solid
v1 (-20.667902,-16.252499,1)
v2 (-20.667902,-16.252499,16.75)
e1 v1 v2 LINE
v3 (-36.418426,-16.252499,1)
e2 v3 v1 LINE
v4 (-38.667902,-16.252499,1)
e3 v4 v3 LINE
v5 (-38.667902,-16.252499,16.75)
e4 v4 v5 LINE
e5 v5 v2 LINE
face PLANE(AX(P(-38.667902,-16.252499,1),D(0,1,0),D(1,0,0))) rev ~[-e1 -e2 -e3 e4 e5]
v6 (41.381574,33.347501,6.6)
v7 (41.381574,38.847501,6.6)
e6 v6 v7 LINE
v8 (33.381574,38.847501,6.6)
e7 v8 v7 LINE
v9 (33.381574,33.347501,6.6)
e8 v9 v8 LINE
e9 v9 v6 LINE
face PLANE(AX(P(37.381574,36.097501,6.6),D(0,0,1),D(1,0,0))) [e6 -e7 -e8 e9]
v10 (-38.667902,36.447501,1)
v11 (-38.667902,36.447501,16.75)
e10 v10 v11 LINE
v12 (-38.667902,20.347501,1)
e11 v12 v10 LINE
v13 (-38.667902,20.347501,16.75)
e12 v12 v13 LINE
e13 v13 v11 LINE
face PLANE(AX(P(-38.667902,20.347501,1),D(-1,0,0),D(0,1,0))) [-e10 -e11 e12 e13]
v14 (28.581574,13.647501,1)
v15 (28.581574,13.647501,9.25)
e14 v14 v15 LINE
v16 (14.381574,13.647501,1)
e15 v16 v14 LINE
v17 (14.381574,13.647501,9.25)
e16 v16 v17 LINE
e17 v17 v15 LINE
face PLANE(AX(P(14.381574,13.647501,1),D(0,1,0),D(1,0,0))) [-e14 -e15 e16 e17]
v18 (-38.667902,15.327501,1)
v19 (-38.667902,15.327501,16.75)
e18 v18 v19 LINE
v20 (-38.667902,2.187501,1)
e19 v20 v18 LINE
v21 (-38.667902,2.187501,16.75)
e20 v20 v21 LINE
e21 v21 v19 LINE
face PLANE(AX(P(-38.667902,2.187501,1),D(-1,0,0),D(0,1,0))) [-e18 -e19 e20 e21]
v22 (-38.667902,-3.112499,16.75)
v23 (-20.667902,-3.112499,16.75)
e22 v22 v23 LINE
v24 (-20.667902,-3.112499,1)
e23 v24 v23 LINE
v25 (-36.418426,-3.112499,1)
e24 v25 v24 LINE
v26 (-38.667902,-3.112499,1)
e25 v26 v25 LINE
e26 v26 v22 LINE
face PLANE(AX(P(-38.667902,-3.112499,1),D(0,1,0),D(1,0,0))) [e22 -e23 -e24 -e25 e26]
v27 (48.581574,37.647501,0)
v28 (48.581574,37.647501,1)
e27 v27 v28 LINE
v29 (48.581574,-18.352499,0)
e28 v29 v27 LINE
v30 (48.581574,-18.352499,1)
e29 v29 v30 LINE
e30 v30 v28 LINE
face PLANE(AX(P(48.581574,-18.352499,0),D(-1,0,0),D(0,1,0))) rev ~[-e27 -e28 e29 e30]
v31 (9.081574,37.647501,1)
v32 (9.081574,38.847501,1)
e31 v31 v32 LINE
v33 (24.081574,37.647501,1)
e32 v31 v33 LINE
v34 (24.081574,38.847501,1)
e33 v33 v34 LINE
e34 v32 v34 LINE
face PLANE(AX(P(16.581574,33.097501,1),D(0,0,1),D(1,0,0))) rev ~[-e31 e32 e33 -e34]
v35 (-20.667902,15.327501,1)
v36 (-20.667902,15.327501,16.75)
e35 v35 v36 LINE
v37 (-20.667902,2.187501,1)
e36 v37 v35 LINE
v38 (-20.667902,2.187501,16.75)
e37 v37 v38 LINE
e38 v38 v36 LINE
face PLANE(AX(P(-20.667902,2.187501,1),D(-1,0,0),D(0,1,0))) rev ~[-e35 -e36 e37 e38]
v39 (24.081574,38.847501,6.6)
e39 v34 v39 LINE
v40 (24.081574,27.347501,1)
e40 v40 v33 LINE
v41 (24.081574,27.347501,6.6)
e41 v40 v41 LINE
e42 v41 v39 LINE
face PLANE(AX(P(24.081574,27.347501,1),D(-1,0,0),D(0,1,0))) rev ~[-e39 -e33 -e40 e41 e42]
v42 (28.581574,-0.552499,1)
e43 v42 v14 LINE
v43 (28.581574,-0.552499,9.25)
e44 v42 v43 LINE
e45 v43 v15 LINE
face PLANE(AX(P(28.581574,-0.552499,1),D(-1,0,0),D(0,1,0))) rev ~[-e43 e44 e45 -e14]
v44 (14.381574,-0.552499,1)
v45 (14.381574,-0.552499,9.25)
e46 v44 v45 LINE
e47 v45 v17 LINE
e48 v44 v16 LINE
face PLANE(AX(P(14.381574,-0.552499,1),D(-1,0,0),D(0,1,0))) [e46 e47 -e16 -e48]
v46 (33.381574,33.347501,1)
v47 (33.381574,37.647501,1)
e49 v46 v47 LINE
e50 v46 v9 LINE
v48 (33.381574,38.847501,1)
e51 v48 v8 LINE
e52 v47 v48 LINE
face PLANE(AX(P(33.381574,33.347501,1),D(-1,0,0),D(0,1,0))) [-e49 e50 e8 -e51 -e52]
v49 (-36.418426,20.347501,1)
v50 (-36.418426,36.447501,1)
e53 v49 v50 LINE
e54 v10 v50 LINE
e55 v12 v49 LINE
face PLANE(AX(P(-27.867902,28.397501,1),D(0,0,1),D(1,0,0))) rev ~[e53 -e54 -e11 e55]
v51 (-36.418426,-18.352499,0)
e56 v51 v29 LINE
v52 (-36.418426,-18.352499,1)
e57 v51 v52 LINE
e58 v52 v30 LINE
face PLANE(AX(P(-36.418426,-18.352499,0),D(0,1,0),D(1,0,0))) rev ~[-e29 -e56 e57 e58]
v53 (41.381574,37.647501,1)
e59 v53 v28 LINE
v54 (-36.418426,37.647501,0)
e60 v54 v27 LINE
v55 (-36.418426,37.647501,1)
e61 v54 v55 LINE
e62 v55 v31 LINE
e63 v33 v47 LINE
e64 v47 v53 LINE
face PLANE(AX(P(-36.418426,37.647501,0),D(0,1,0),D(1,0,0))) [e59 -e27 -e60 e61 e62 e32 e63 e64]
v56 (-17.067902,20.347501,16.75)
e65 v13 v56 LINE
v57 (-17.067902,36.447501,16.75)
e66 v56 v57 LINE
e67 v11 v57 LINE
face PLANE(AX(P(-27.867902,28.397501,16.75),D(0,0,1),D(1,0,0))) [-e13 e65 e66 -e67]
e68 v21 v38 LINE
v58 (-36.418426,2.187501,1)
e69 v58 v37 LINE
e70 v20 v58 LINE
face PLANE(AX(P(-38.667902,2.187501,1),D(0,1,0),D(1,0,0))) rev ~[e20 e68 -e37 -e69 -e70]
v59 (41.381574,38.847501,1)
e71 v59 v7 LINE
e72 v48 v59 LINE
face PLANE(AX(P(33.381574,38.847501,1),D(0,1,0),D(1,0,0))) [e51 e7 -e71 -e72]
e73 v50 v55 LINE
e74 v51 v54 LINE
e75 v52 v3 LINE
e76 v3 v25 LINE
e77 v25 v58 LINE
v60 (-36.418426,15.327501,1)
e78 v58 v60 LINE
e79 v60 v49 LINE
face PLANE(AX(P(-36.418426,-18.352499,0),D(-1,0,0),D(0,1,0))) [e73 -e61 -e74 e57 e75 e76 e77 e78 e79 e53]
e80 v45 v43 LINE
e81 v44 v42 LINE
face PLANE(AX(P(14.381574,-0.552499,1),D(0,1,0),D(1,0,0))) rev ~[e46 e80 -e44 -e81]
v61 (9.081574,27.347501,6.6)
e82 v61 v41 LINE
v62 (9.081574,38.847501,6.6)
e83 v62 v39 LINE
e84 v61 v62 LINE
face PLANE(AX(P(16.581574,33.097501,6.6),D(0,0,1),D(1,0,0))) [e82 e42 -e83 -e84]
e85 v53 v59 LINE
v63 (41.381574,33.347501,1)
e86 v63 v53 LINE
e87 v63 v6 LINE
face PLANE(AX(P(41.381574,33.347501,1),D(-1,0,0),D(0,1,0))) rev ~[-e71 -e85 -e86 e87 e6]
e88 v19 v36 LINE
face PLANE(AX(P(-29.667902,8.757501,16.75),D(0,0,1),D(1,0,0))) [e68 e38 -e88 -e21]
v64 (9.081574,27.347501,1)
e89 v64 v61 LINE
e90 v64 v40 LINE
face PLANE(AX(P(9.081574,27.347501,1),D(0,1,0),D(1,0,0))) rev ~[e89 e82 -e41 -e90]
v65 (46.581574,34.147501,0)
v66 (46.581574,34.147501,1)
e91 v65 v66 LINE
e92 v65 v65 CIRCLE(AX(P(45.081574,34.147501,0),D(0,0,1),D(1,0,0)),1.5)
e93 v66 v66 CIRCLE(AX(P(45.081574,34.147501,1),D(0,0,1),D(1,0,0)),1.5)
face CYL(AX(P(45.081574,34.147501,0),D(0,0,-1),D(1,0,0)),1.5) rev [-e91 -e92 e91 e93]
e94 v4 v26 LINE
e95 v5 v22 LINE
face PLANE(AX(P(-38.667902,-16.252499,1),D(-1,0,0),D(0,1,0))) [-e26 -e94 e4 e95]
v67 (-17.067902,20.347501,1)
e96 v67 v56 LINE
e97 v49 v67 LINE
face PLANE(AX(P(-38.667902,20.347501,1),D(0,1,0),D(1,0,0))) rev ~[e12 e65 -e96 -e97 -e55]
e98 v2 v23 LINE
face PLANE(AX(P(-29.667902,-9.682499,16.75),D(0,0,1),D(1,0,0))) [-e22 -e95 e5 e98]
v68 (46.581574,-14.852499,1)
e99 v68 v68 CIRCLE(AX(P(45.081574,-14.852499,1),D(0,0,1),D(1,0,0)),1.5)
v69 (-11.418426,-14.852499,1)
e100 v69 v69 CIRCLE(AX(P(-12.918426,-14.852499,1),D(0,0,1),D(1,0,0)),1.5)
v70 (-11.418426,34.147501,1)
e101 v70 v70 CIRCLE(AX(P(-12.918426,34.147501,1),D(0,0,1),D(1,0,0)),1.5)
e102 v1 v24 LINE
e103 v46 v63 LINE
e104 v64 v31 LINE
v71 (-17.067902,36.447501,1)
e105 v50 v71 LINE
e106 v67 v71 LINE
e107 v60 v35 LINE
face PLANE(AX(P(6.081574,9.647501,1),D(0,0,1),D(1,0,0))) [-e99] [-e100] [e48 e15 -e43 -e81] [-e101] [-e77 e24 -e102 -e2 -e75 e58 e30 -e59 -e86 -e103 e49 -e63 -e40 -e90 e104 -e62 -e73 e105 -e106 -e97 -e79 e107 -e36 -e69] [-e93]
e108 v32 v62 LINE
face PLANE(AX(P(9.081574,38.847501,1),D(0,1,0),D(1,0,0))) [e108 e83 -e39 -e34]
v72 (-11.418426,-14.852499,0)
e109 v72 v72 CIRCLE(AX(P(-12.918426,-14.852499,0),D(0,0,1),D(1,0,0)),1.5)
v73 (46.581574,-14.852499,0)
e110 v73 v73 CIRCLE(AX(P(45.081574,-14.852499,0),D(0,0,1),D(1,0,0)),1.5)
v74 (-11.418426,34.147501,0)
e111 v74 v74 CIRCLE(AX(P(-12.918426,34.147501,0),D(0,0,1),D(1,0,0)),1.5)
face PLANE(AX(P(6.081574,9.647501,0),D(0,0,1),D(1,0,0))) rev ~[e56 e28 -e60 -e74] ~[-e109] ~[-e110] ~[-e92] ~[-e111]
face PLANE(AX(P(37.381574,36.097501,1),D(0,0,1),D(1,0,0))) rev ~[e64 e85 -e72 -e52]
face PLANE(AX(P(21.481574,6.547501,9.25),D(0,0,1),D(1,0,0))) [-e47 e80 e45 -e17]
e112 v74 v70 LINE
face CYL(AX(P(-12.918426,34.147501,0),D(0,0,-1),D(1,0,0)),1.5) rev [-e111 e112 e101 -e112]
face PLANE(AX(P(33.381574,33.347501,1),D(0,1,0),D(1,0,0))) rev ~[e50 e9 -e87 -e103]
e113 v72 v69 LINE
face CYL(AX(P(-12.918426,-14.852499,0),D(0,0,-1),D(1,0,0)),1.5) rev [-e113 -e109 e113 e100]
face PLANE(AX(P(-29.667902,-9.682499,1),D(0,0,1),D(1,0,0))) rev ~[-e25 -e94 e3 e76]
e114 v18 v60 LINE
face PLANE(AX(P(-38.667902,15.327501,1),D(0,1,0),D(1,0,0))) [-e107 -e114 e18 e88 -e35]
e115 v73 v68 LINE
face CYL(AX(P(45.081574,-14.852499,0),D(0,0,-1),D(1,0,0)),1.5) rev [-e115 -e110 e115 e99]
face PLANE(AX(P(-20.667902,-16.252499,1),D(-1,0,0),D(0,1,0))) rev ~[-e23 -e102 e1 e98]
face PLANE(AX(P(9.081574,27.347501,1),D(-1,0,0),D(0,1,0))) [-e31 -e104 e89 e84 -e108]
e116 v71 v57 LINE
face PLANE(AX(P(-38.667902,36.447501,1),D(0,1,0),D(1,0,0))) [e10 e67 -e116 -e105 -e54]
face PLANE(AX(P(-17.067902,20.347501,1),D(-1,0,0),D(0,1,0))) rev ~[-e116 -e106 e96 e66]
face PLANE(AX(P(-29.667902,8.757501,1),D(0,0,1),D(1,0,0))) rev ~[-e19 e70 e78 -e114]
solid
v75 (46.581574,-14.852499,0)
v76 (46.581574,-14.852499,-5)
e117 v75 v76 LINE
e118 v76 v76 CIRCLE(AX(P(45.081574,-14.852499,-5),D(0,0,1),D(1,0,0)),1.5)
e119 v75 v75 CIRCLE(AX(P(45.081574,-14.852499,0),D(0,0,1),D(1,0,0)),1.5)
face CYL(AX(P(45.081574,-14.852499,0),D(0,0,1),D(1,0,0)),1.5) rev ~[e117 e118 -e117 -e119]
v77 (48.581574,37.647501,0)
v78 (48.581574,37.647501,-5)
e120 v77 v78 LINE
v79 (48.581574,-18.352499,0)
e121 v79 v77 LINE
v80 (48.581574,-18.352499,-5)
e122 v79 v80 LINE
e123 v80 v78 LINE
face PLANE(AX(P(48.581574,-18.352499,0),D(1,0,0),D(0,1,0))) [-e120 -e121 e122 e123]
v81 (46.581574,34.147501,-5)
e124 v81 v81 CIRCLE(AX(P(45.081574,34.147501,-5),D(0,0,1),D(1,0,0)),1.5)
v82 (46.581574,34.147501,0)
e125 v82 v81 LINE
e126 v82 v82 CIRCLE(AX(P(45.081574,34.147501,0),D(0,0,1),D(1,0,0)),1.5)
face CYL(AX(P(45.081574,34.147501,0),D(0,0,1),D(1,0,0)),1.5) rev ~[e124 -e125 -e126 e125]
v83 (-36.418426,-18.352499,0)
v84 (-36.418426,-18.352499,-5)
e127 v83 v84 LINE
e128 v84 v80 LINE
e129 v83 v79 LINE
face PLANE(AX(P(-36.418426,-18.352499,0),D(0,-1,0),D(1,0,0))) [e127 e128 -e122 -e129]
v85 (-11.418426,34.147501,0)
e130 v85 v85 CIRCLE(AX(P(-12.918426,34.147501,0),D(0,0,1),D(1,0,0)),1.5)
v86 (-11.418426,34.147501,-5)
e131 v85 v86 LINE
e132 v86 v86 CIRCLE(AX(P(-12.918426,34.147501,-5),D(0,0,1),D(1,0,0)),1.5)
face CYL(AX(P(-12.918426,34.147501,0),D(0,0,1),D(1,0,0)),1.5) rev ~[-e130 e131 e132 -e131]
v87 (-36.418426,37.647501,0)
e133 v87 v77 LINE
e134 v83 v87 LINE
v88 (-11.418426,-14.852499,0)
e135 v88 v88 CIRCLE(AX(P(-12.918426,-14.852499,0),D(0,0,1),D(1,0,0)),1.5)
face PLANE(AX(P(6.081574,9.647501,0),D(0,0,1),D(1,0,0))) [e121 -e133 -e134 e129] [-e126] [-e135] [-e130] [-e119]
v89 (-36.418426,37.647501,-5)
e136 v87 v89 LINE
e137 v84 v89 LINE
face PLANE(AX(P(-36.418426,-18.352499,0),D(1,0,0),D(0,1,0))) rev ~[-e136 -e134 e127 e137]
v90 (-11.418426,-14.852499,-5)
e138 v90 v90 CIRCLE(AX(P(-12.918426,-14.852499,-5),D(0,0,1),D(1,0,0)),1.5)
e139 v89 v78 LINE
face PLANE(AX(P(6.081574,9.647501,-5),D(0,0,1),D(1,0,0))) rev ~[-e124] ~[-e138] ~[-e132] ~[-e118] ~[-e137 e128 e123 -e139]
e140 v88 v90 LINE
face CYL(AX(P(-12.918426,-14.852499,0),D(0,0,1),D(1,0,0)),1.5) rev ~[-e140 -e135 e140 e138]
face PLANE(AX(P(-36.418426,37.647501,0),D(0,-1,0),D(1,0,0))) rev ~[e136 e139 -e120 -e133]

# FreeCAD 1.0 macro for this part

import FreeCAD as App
import Part
import Sketcher

doc = App.newDocument("Part")
body = doc.addObject("PartDesign::Body", "Body")

# Sketch on XY plane
sketch1 = body.newObject("Sketcher::SketchObject", "Sketch")
sketch1.AttachmentSupport = (doc.getObject("XY_Plane"), [""])
sketch1.MapMode = "FlatFace"
sketch1.addGeometry([
    Part.LineSegment(App.Vector(-36.418426, 37.647501, 0), App.Vector(-36.418426, -18.352499, 0)),  # 0
    Part.LineSegment(App.Vector(-36.418426, -18.352499, 0), App.Vector(48.581574, -18.352499, 0)),  # 1
    Part.LineSegment(App.Vector(48.581574, -18.352499, 0), App.Vector(48.581574, 37.647501, 0)),  # 2
    Part.LineSegment(App.Vector(48.581574, 37.647501, 0), App.Vector(-36.418426, 37.647501, 0)),  # 3
    Part.Circle(App.Vector(-12.918426, -14.852499, 0), App.Vector(0, 0, 1), 1.5),  # 4
    Part.Circle(App.Vector(45.081574, -14.852499, 0), App.Vector(0, 0, 1), 1.5),  # 5
    Part.Circle(App.Vector(-12.918426, 34.147501, 0), App.Vector(0, 0, 1), 1.5),  # 6
    Part.Circle(App.Vector(45.081574, 34.147501, 0), App.Vector(0, 0, 1), 1.5),  # 7
], False)
sketch1.addConstraint([
    Sketcher.Constraint("Coincident", 0, 2, 1, 1),
    Sketcher.Constraint("Coincident", 1, 2, 2, 1),
    Sketcher.Constraint("Coincident", 2, 2, 3, 1),
    Sketcher.Constraint("Coincident", 3, 2, 0, 1),
    Sketcher.Constraint("Vertical", 0),
    Sketcher.Constraint("Horizontal", 1),
    Sketcher.Constraint("Vertical", 2),
    Sketcher.Constraint("Horizontal", 3),
    Sketcher.Constraint("Equal", 4, 5),
    Sketcher.Constraint("Equal", 5, 6),
    Sketcher.Constraint("Equal", 6, 7),
    Sketcher.Constraint("Horizontal", 4, 3, 5, 3),
    Sketcher.Constraint("Horizontal", 6, 3, 7, 3),
    Sketcher.Constraint("Vertical", 4, 3, 6, 3),
    Sketcher.Constraint("Vertical", 5, 3, 7, 3),
    Sketcher.Constraint("Diameter", 4, 3.0),
    Sketcher.Constraint("DistanceX", 1, 1, 1, 2, 85.0),
    Sketcher.Constraint("DistanceY", 0, 2, 0, 1, 56.0),
    Sketcher.Constraint("DistanceX", 4, 3, 5, 3, 58.0),
    Sketcher.Constraint("DistanceY", 4, 3, 6, 3, 49.0),
    Sketcher.Constraint("DistanceX", 0, 2, 4, 3, 23.5),
    Sketcher.Constraint("DistanceY", 0, 2, 4, 3, 3.5),
    Sketcher.Constraint("DistanceY", 4, 3, -1, 1, 14.852499),
    Sketcher.Constraint("DistanceX", 4, 3, -1, 1, 12.918426),
])
pad1 = body.newObject("PartDesign::Pad", "Pad")
pad1.Profile = sketch1
pad1.Length = 1

# Sketch on XY plane
sketch2 = body.newObject("Sketcher::SketchObject", "Sketch001")
sketch2.AttachmentSupport = (doc.getObject("XY_Plane"), [""])
sketch2.MapMode = "FlatFace"
sketch2.AttachmentOffset = App.Placement(App.Vector(0, 0, 1), App.Rotation())
sketch2.addGeometry([
    Part.LineSegment(App.Vector(14.381574, 13.647501, 0), App.Vector(14.381574, -0.552499, 0)),
    Part.LineSegment(App.Vector(14.381574, -0.552499, 0), App.Vector(28.581574, -0.552499, 0)),
    Part.LineSegment(App.Vector(28.581574, -0.552499, 0), App.Vector(28.581574, 13.647501, 0)),
    Part.LineSegment(App.Vector(28.581574, 13.647501, 0), App.Vector(14.381574, 13.647501, 0)),
], False)
sketch2.addConstraint([
    Sketcher.Constraint("Coincident", 0, 2, 1, 1),
    Sketcher.Constraint("Coincident", 1, 2, 2, 1),
    Sketcher.Constraint("Coincident", 2, 2, 3, 1),
    Sketcher.Constraint("Coincident", 3, 2, 0, 1),
    Sketcher.Constraint("Vertical", 0),
    Sketcher.Constraint("Horizontal", 1),
    Sketcher.Constraint("Vertical", 2),
    Sketcher.Constraint("Horizontal", 3),
    Sketcher.Constraint("Equal", 3, 0),
    Sketcher.Constraint("DistanceX", 1, 1, 1, 2, 14.2),
    Sketcher.Constraint("DistanceY", 0, 2, -1, 1, 0.552499),
    Sketcher.Constraint("DistanceX", -1, 1, 0, 2, 14.381574),
])
pad2 = body.newObject("PartDesign::Pad", "Pad001")
pad2.Profile = sketch2
pad2.Length = 8.25

# Sketch on XY plane
sketch3 = body.newObject("Sketcher::SketchObject", "Sketch002")
sketch3.AttachmentSupport = (doc.getObject("XY_Plane"), [""])
sketch3.MapMode = "FlatFace"
sketch3.AttachmentOffset = App.Placement(App.Vector(0, 0, 1), App.Rotation())
sketch3.addGeometry([
    Part.LineSegment(App.Vector(-38.667902, 15.327501, 0), App.Vector(-38.667902, 2.187501, 0)),  # 0
    Part.LineSegment(App.Vector(-38.667902, 2.187501, 0), App.Vector(-20.667902, 2.187501, 0)),  # 1
    Part.LineSegment(App.Vector(-20.667902, 2.187501, 0), App.Vector(-20.667902, 15.327501, 0)),  # 2
    Part.LineSegment(App.Vector(-20.667902, 15.327501, 0), App.Vector(-38.667902, 15.327501, 0)),  # 3
    Part.LineSegment(App.Vector(-38.667902, -3.112499, 0), App.Vector(-38.667902, -16.252499, 0)),  # 4
    Part.LineSegment(App.Vector(-38.667902, -16.252499, 0), App.Vector(-20.667902, -16.252499, 0)),  # 5
    Part.LineSegment(App.Vector(-20.667902, -16.252499, 0), App.Vector(-20.667902, -3.112499, 0)),  # 6
    Part.LineSegment(App.Vector(-20.667902, -3.112499, 0), App.Vector(-38.667902, -3.112499, 0)),  # 7
    Part.LineSegment(App.Vector(-38.667902, 36.447501, 0), App.Vector(-38.667902, 20.347501, 0)),  # 8
    Part.LineSegment(App.Vector(-38.667902, 20.347501, 0), App.Vector(-17.067902, 20.347501, 0)),  # 9
    Part.LineSegment(App.Vector(-17.067902, 20.347501, 0), App.Vector(-17.067902, 36.447501, 0)),  # 10
    Part.LineSegment(App.Vector(-17.067902, 36.447501, 0), App.Vector(-38.667902, 36.447501, 0)),  # 11
], False)
sketch3.addConstraint([
    Sketcher.Constraint("Coincident", 0, 2, 1, 1),
    Sketcher.Constraint("Coincident", 1, 2, 2, 1),
    Sketcher.Constraint("Coincident", 2, 2, 3, 1),
    Sketcher.Constraint("Coincident", 3, 2, 0, 1),
    Sketcher.Constraint("Coincident", 4, 2, 5, 1),
    Sketcher.Constraint("Coincident", 5, 2, 6, 1),
    Sketcher.Constraint("Coincident", 6, 2, 7, 1),
    Sketcher.Constraint("Coincident", 7, 2, 4, 1),
    Sketcher.Constraint("Coincident", 8, 2, 9, 1),
    Sketcher.Constraint("Coincident", 9, 2, 10, 1),
    Sketcher.Constraint("Coincident", 10, 2, 11, 1),
    Sketcher.Constraint("Coincident", 11, 2, 8, 1),
    Sketcher.Constraint("Vertical", 0),
    Sketcher.Constraint("Horizontal", 1),
    Sketcher.Constraint("Vertical", 2),
    Sketcher.Constraint("Horizontal", 3),
    Sketcher.Constraint("Vertical", 4),
    Sketcher.Constraint("Horizontal", 5),
    Sketcher.Constraint("Vertical", 6),
    Sketcher.Constraint("Horizontal", 7),
    Sketcher.Constraint("Vertical", 8),
    Sketcher.Constraint("Horizontal", 9),
    Sketcher.Constraint("Vertical", 10),
    Sketcher.Constraint("Horizontal", 11),
    Sketcher.Constraint("Vertical", 3, 2, 4, 2),
    Sketcher.Constraint("Vertical", 2, 2, 5, 2),
    Sketcher.Constraint("Vertical", 7, 2, 8, 2),
    Sketcher.Constraint("Equal", 2, 4),
    Sketcher.Constraint("DistanceX", 1, 1, 1, 2, 18.0),
    Sketcher.Constraint("DistanceX", 9, 1, 9, 2, 21.6),
    Sketcher.Constraint("DistanceY", 8, 2, 8, 1, 16.1),
    Sketcher.Constraint("DistanceY", 0, 2, 0, 1, 13.14),
    Sketcher.Constraint("DistanceY", 6, 2, 1, 2, 5.3),
    Sketcher.Constraint("DistanceY", 3, 2, 8, 2, 5.02),
    Sketcher.Constraint("DistanceY", -1, 1, 0, 2, 2.187501),
    Sketcher.Constraint("DistanceX", 0, 2, -1, 1, 38.667902),
])
pad3 = body.newObject("PartDesign::Pad", "Pad002")
pad3.Profile = sketch3
pad3.Length = 15.75

# Sketch on XY plane
sketch4 = body.newObject("Sketcher::SketchObject", "Sketch003")
sketch4.AttachmentSupport = (doc.getObject("XY_Plane"), [""])
sketch4.MapMode = "FlatFace"
sketch4.AttachmentOffset = App.Placement(App.Vector(0, 0, 1), App.Rotation())
sketch4.addGeometry([
    Part.LineSegment(App.Vector(9.081574, 38.847501, 0), App.Vector(9.081574, 27.347501, 0)),  # 0
    Part.LineSegment(App.Vector(9.081574, 27.347501, 0), App.Vector(24.081574, 27.347501, 0)),  # 1
    Part.LineSegment(App.Vector(24.081574, 27.347501, 0), App.Vector(24.081574, 38.847501, 0)),  # 2
    Part.LineSegment(App.Vector(24.081574, 38.847501, 0), App.Vector(9.081574, 38.847501, 0)),  # 3
    Part.LineSegment(App.Vector(33.381574, 38.847501, 0), App.Vector(33.381574, 33.347501, 0)),  # 4
    Part.LineSegment(App.Vector(33.381574, 33.347501, 0), App.Vector(41.381574, 33.347501, 0)),  # 5
    Part.LineSegment(App.Vector(41.381574, 33.347501, 0), App.Vector(41.381574, 38.847501, 0)),  # 6
    Part.LineSegment(App.Vector(41.381574, 38.847501, 0), App.Vector(33.381574, 38.847501, 0)),  # 7
], False)
sketch4.addConstraint([
    Sketcher.Constraint("Coincident", 0, 2, 1, 1),
    Sketcher.Constraint("Coincident", 1, 2, 2, 1),
    Sketcher.Constraint("Coincident", 2, 2, 3, 1),
    Sketcher.Constraint("Coincident", 3, 2, 0, 1),
    Sketcher.Constraint("Coincident", 4, 2, 5, 1),
    Sketcher.Constraint("Coincident", 5, 2, 6, 1),
    Sketcher.Constraint("Coincident", 6, 2, 7, 1),
    Sketcher.Constraint("Coincident", 7, 2, 4, 1),
    Sketcher.Constraint("Vertical", 0),
    Sketcher.Constraint("Horizontal", 1),
    Sketcher.Constraint("Vertical", 2),
    Sketcher.Constraint("Horizontal", 3),
    Sketcher.Constraint("Vertical", 4),
    Sketcher.Constraint("Horizontal", 5),
    Sketcher.Constraint("Vertical", 6),
    Sketcher.Constraint("Horizontal", 7),
    Sketcher.Constraint("Horizontal", 3, 2, 6, 2),
    Sketcher.Constraint("DistanceX", 1, 1, 1, 2, 15.0),
    Sketcher.Constraint("DistanceX", 5, 1, 5, 2, 8.0),
    Sketcher.Constraint("DistanceY", 0, 2, 0, 1, 11.5),
    Sketcher.Constraint("DistanceY", 4, 2, 4, 1, 5.5),
    Sketcher.Constraint("DistanceX", 2, 2, 4, 2, 9.3),
    Sketcher.Constraint("DistanceY", -1, 1, 0, 2, 27.347501),
    Sketcher.Constraint("DistanceX", -1, 1, 0, 2, 9.081574),
])
pad4 = body.newObject("PartDesign::Pad", "Pad003")
pad4.Profile = sketch4
pad4.Length = 5.6
body2 = doc.addObject("PartDesign::Body", "Body001")

# Sketch on XY plane
sketch5 = body2.newObject("Sketcher::SketchObject", "Sketch004")
sketch5.AttachmentSupport = (doc.getObject("XY_Plane001"), [""])
sketch5.MapMode = "FlatFace"
sketch5.addGeometry([
    Part.LineSegment(App.Vector(-36.418426, 37.647501, 0), App.Vector(-36.418426, -18.352499, 0)),  # 0
    Part.LineSegment(App.Vector(-36.418426, -18.352499, 0), App.Vector(48.581574, -18.352499, 0)),  # 1
    Part.LineSegment(App.Vector(48.581574, -18.352499, 0), App.Vector(48.581574, 37.647501, 0)),  # 2
    Part.LineSegment(App.Vector(48.581574, 37.647501, 0), App.Vector(-36.418426, 37.647501, 0)),  # 3
    Part.Circle(App.Vector(-12.918426, -14.852499, 0), App.Vector(0, 0, 1), 1.5),  # 4
    Part.Circle(App.Vector(45.081574, -14.852499, 0), App.Vector(0, 0, 1), 1.5),  # 5
    Part.Circle(App.Vector(-12.918426, 34.147501, 0), App.Vector(0, 0, 1), 1.5),  # 6
    Part.Circle(App.Vector(45.081574, 34.147501, 0), App.Vector(0, 0, 1), 1.5),  # 7
], False)
sketch5.addConstraint([
    Sketcher.Constraint("Coincident", 0, 2, 1, 1),
    Sketcher.Constraint("Coincident", 1, 2, 2, 1),
    Sketcher.Constraint("Coincident", 2, 2, 3, 1),
    Sketcher.Constraint("Coincident", 3, 2, 0, 1),
    Sketcher.Constraint("Vertical", 0),
    Sketcher.Constraint("Horizontal", 1),
    Sketcher.Constraint("Vertical", 2),
    Sketcher.Constraint("Horizontal", 3),
    Sketcher.Constraint("Equal", 4, 5),
    Sketcher.Constraint("Equal", 5, 6),
    Sketcher.Constraint("Equal", 6, 7),
    Sketcher.Constraint("Horizontal", 4, 3, 5, 3),
    Sketcher.Constraint("Horizontal", 6, 3, 7, 3),
    Sketcher.Constraint("Vertical", 4, 3, 6, 3),
    Sketcher.Constraint("Vertical", 5, 3, 7, 3),
    Sketcher.Constraint("Diameter", 4, 3.0),
    Sketcher.Constraint("DistanceX", 1, 1, 1, 2, 85.0),
    Sketcher.Constraint("DistanceY", 0, 2, 0, 1, 56.0),
    Sketcher.Constraint("DistanceX", 4, 3, 5, 3, 58.0),
    Sketcher.Constraint("DistanceY", 4, 3, 6, 3, 49.0),
    Sketcher.Constraint("DistanceX", 0, 2, 4, 3, 23.5),
    Sketcher.Constraint("DistanceY", 0, 2, 4, 3, 3.5),
    Sketcher.Constraint("DistanceY", 4, 3, -1, 1, 14.852499),
    Sketcher.Constraint("DistanceX", 4, 3, -1, 1, 12.918426),
])
pad5 = body2.newObject("PartDesign::Pad", "Pad004")
pad5.Profile = sketch5
pad5.Length = 5
pad5.Reversed = True

doc.recompute()
